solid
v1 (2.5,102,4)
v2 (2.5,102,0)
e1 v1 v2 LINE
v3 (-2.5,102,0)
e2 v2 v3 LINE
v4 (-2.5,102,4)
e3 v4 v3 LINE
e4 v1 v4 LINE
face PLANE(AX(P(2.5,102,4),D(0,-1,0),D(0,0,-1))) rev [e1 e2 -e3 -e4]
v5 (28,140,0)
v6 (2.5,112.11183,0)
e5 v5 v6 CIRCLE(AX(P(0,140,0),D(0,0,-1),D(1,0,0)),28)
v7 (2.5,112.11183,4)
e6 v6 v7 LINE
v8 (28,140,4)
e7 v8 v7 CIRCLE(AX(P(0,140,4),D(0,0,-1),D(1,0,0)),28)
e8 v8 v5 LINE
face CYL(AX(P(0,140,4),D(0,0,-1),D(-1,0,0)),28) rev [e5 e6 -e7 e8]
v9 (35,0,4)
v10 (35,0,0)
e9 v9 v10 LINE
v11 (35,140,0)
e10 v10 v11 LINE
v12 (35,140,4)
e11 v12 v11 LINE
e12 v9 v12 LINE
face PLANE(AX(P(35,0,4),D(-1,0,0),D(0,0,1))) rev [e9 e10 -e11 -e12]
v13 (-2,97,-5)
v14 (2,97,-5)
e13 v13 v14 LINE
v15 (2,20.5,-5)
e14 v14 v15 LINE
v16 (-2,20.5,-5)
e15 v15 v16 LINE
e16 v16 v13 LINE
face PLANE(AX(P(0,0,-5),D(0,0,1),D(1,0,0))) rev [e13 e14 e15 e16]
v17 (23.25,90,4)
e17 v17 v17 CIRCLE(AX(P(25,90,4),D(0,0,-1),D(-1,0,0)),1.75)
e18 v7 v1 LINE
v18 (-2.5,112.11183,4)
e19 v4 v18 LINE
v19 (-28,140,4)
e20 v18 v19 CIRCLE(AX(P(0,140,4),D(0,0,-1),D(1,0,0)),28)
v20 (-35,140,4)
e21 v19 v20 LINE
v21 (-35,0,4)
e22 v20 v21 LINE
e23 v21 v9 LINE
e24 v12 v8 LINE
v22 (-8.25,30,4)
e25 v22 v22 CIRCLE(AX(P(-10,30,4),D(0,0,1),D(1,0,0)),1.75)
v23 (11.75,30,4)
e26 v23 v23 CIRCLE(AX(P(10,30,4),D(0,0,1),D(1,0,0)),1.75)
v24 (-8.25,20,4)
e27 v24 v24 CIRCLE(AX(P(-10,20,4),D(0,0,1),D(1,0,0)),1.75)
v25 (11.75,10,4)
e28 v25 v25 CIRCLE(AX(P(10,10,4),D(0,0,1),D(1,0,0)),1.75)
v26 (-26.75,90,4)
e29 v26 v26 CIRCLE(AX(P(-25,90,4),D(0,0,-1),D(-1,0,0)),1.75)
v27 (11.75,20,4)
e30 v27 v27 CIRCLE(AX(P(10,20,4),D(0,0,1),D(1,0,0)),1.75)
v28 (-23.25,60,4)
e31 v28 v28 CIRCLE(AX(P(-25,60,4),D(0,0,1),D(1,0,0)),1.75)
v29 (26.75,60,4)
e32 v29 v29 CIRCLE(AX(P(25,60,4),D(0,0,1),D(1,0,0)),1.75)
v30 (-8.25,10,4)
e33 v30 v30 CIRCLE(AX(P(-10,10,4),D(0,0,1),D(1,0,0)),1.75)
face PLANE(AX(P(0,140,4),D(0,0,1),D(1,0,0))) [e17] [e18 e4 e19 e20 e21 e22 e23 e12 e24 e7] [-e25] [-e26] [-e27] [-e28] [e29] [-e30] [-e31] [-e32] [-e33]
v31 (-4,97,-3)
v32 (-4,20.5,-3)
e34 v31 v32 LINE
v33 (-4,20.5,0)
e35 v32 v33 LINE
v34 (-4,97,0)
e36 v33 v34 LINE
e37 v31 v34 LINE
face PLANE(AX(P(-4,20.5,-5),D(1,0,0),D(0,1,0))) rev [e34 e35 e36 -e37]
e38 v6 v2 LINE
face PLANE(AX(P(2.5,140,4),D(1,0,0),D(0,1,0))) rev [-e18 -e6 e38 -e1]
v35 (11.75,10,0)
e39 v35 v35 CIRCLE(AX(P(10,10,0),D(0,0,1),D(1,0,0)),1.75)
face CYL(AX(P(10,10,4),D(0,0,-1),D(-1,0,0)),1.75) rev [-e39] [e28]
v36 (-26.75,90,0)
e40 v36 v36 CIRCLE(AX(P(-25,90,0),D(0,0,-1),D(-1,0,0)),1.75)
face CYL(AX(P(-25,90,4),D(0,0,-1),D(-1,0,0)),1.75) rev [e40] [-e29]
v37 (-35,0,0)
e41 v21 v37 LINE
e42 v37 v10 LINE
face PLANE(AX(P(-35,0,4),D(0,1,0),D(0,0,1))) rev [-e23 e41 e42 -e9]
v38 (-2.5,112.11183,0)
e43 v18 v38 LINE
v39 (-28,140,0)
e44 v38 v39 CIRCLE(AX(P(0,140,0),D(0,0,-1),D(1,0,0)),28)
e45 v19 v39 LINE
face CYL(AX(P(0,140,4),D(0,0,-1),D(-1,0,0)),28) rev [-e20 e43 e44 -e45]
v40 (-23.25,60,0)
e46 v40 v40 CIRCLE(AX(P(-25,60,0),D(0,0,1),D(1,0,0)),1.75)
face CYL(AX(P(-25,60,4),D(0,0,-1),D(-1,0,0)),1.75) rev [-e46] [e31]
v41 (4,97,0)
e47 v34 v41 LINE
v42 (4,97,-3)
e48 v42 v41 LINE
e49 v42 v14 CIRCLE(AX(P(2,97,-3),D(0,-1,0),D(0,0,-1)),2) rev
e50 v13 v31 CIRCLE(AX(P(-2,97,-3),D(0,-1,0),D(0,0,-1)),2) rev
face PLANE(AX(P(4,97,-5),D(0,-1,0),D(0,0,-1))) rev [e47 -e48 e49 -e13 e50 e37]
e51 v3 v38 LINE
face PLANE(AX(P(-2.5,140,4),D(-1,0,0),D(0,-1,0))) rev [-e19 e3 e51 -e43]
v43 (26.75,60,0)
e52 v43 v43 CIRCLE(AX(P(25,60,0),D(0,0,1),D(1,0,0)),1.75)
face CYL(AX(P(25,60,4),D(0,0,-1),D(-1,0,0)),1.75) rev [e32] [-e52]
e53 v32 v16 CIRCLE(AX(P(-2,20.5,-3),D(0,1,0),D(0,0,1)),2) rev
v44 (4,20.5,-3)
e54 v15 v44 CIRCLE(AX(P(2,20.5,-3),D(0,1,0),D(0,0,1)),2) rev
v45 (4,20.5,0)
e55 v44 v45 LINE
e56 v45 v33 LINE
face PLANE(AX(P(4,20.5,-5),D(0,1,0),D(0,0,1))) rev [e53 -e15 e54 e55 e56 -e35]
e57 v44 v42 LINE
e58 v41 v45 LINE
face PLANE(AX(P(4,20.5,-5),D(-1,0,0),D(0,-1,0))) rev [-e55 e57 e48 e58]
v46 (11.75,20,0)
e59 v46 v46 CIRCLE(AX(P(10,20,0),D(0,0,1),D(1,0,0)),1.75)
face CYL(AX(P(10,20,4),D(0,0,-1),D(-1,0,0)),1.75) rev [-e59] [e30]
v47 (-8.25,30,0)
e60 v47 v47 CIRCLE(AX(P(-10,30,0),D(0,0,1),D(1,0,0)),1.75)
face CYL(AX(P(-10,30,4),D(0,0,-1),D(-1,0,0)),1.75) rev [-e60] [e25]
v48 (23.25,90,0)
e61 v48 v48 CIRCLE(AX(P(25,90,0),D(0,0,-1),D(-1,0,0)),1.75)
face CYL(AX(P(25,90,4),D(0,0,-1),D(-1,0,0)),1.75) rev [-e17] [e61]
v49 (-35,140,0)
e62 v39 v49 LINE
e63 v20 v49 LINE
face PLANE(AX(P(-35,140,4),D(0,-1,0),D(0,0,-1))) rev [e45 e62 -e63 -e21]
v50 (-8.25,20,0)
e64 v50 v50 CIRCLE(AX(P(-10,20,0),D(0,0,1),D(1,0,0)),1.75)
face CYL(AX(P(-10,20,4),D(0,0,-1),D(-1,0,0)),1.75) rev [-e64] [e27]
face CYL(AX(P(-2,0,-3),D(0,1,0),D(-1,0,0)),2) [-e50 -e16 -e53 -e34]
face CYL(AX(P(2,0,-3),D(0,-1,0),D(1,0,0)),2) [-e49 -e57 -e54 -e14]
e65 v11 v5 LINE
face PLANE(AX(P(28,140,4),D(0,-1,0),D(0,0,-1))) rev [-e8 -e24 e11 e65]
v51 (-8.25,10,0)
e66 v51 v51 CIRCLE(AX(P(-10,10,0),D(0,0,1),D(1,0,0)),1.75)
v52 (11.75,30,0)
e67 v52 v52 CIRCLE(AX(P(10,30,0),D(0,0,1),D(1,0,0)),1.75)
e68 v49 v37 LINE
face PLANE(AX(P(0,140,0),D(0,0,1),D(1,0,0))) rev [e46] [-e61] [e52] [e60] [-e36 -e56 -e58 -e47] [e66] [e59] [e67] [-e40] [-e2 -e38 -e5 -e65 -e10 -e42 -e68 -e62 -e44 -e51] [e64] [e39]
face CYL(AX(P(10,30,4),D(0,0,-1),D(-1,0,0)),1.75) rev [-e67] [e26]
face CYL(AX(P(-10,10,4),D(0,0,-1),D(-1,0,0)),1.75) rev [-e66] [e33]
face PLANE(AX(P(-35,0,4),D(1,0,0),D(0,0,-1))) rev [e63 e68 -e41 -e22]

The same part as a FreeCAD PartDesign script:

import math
import FreeCAD as App
import Part
import Sketcher

V = App.Vector


def edges_at(feature, points):
    """Names of the edges that pass closest to the given points."""
    edges = feature.Shape.Edges
    near = lambda p: min(range(len(edges)), key=lambda i: edges[i].distToShape(Part.Vertex(*p))[0])
    return sorted({f"Edge{near(p) + 1}" for p in points})


def add_polygon(sketch, points):
    """Adds a closed chain of lines whose ends are joined by coincident constraints."""
    first, n = sketch.GeometryCount, len(points)
    for a, b in zip(points, points[1:] + points[:1]):
        sketch.addGeometry(Part.LineSegment(App.Vector(*a, 0), App.Vector(*b, 0)), False)
    for i in range(n):
        sketch.addConstraint(Sketcher.Constraint("Coincident", first + i, 2, first + (i + 1) % n, 1))

doc = App.newDocument("Part")
body = doc.addObject("PartDesign::Body", "Body")

# Sketch on XY plane
sketch1 = body.newObject("Sketcher::SketchObject", "Sketch")
sketch1.AttachmentSupport = (doc.getObject("XY_Plane"), [""])
sketch1.MapMode = "FlatFace"
sketch1.addGeometry(Part.LineSegment(V(-28, 140, 0), V(-35, 140, 0)), False)
sketch1.addGeometry(Part.LineSegment(V(-35, 140, 0), V(-35, 0, 0)), False)
sketch1.addGeometry(Part.LineSegment(V(-35, 0, 0), V(35, 0, 0)), False)
sketch1.addGeometry(Part.LineSegment(V(35, 0, 0), V(35, 140, 0)), False)
sketch1.addGeometry(Part.LineSegment(V(35, 140, 0), V(28, 140, 0)), False)
sketch1.addGeometry(Part.ArcOfCircle(Part.Circle(V(0, 140, 0), V(0, 0, 1), 28), math.radians(180), math.radians(360)), False)
sketch1.addGeometry(Part.Circle(V(10, 10, 0), V(0, 0, 1), 1.8), False)
sketch1.addGeometry(Part.Circle(V(10, 20, 0), V(0, 0, 1), 1.8), False)
sketch1.addGeometry(Part.Circle(V(10, 30, 0), V(0, 0, 1), 1.8), False)
sketch1.addGeometry(Part.Circle(V(-10, 10, 0), V(0, 0, 1), 1.8), False)
sketch1.addGeometry(Part.Circle(V(-10, 20, 0), V(0, 0, 1), 1.8), False)
sketch1.addGeometry(Part.Circle(V(-10, 30, 0), V(0, 0, 1), 1.8), False)
sketch1.addGeometry(Part.Circle(V(25, 60, 0), V(0, 0, 1), 1.8), False)
sketch1.addGeometry(Part.Circle(V(-25, 60, 0), V(0, 0, 1), 1.8), False)
sketch1.addConstraint(Sketcher.Constraint("Coincident", 0, 2, 1, 1))
sketch1.addConstraint(Sketcher.Constraint("Coincident", 1, 2, 2, 1))
sketch1.addConstraint(Sketcher.Constraint("Coincident", 2, 2, 3, 1))
sketch1.addConstraint(Sketcher.Constraint("Coincident", 3, 2, 4, 1))
sketch1.addConstraint(Sketcher.Constraint("Coincident", 4, 2, 5, 2))
sketch1.addConstraint(Sketcher.Constraint("Coincident", 5, 1, 0, 1))
sketch1.addConstraint(Sketcher.Constraint("Horizontal", 0))
sketch1.addConstraint(Sketcher.Constraint("Vertical", 1))
sketch1.addConstraint(Sketcher.Constraint("Horizontal", 2))
sketch1.addConstraint(Sketcher.Constraint("Vertical", 3))
sketch1.addConstraint(Sketcher.Constraint("Horizontal", 4))
sketch1.addConstraint(Sketcher.Constraint("Equal", 6, 7))
sketch1.addConstraint(Sketcher.Constraint("Equal", 7, 8))
sketch1.addConstraint(Sketcher.Constraint("Equal", 8, 9))
sketch1.addConstraint(Sketcher.Constraint("Equal", 9, 10))
sketch1.addConstraint(Sketcher.Constraint("Equal", 10, 11))
sketch1.addConstraint(Sketcher.Constraint("Equal", 11, 12))
sketch1.addConstraint(Sketcher.Constraint("Equal", 12, 13))
sketch1.addConstraint(Sketcher.Constraint("Symmetric", 1, 2, 2, 2, -1, 1))
sketch1.addConstraint(Sketcher.Constraint("Symmetric", 6, 3, 9, 3, -2))
sketch1.addConstraint(Sketcher.Constraint("Symmetric", 7, 3, 10, 3, -2))
sketch1.addConstraint(Sketcher.Constraint("Symmetric", 8, 3, 11, 3, -2))
sketch1.addConstraint(Sketcher.Constraint("Symmetric", 12, 3, 13, 3, -2))
sketch1.addConstraint(Sketcher.Constraint("Symmetric", 4, 2, 5, 1, -2))
sketch1.addConstraint(Sketcher.Constraint("Horizontal", 5, 3, 0, 2))
sketch1.addConstraint(Sketcher.Constraint("Vertical", 6, 3, 7, 3))
sketch1.addConstraint(Sketcher.Constraint("Vertical", 7, 3, 8, 3))
sketch1.addConstraint(Sketcher.Constraint("Radius", 5, 28.0))
sketch1.addConstraint(Sketcher.Constraint("Diameter", 6, 3.5))
sketch1.addConstraint(Sketcher.Constraint("DistanceX", 0, 2, 0, 1, 7.0))
sketch1.addConstraint(Sketcher.Constraint("DistanceY", 1, 2, 1, 1, 140.0))
sketch1.addConstraint(Sketcher.Constraint("DistanceX", -1, 1, 6, 3, 10.0))
sketch1.addConstraint(Sketcher.Constraint("DistanceY", -1, 1, 6, 3, 10.0))
sketch1.addConstraint(Sketcher.Constraint("DistanceY", -1, 1, 7, 3, 20.0))
sketch1.addConstraint(Sketcher.Constraint("DistanceY", -1, 1, 8, 3, 30.0))
sketch1.addConstraint(Sketcher.Constraint("DistanceX", -1, 1, 12, 3, 25.0))
sketch1.addConstraint(Sketcher.Constraint("DistanceY", -1, 1, 12, 3, 60.0))
pad1 = body.newObject("PartDesign::Pad", "Pad")
pad1.Profile = sketch1
pad1.Length = 4

# Sketch on XY plane
sketch2 = body.newObject("Sketcher::SketchObject", "Sketch001")
sketch2.AttachmentSupport = (doc.getObject("XY_Plane"), [""])
sketch2.MapMode = "FlatFace"
add_polygon(sketch2, [(2, 140), (2, 102), (-2, 102), (-2, 140)])  # lines 0-3
sketch2.addConstraint(Sketcher.Constraint("Vertical", 0))
sketch2.addConstraint(Sketcher.Constraint("Horizontal", 1))
sketch2.addConstraint(Sketcher.Constraint("Vertical", 2))
sketch2.addConstraint(Sketcher.Constraint("Horizontal", 3))
sketch2.addConstraint(Sketcher.Constraint("DistanceX", 1, 2, 1, 1, 5.0))
sketch2.addConstraint(Sketcher.Constraint("DistanceY", 0, 2, 0, 1, 38.0))
sketch2.addConstraint(Sketcher.Constraint("DistanceY", -1, 1, 0, 2, 102.0))
sketch2.addConstraint(Sketcher.Constraint("DistanceX", -1, 1, 0, 2, 2.5))
pocket1 = body.newObject("PartDesign::Pocket", "Pocket")
pocket1.Profile = sketch2
pocket1.Type = "ThroughAll"
pocket1.Reversed = True

# Sketch on XY plane
sketch3 = body.newObject("Sketcher::SketchObject", "Sketch002")
sketch3.AttachmentSupport = (doc.getObject("XY_Plane"), [""])
sketch3.MapMode = "FlatFace"
add_polygon(sketch3, [(4, 97), (4, 20), (-4, 20), (-4, 97)])  # lines 0-3
sketch3.addConstraint(Sketcher.Constraint("Vertical", 0))
sketch3.addConstraint(Sketcher.Constraint("Horizontal", 1))
sketch3.addConstraint(Sketcher.Constraint("Vertical", 2))
sketch3.addConstraint(Sketcher.Constraint("Horizontal", 3))
sketch3.addConstraint(Sketcher.Constraint("DistanceX", 1, 2, 1, 1, 8.0))
sketch3.addConstraint(Sketcher.Constraint("DistanceY", 0, 2, 0, 1, 76.5))
sketch3.addConstraint(Sketcher.Constraint("DistanceX", -1, 1, 0, 2, 4.0))
sketch3.addConstraint(Sketcher.Constraint("DistanceY", -1, 1, 2, 2, 97.0))
pad2 = body.newObject("PartDesign::Pad", "Pad001")
pad2.Profile = sketch3
pad2.Length = 5
pad2.Reversed = True
doc.recompute()

fillet = body.newObject("PartDesign::Fillet", "Fillet")
fillet.Base = (pad2, edges_at(pad2, [(4, 58.75, -5), (-4, 58.75, -5)]))
fillet.Radius = 2

# Sketch on XY plane
sketch4 = body.newObject("Sketcher::SketchObject", "Sketch003")
sketch4.AttachmentSupport = (doc.getObject("XY_Plane"), [""])
sketch4.MapMode = "FlatFace"
sketch4.addGeometry(Part.Circle(V(25, 90, 0), V(0, 0, 1), 1.8), False)
sketch4.addGeometry(Part.Circle(V(-25, 90, 0), V(0, 0, 1), 1.8), False)
sketch4.addConstraint(Sketcher.Constraint("Equal", 0, 1))
sketch4.addConstraint(Sketcher.Constraint("Symmetric", 0, 3, 1, 3, -2))
sketch4.addConstraint(Sketcher.Constraint("Diameter", 0, 3.5))
sketch4.addConstraint(Sketcher.Constraint("DistanceX", -1, 1, 0, 3, 25.0))
sketch4.addConstraint(Sketcher.Constraint("DistanceY", -1, 1, 0, 3, 90.0))
pocket2 = body.newObject("PartDesign::Pocket", "Pocket001")
pocket2.Profile = sketch4
pocket2.Type = "ThroughAll"
pocket2.Reversed = True

doc.recompute()
